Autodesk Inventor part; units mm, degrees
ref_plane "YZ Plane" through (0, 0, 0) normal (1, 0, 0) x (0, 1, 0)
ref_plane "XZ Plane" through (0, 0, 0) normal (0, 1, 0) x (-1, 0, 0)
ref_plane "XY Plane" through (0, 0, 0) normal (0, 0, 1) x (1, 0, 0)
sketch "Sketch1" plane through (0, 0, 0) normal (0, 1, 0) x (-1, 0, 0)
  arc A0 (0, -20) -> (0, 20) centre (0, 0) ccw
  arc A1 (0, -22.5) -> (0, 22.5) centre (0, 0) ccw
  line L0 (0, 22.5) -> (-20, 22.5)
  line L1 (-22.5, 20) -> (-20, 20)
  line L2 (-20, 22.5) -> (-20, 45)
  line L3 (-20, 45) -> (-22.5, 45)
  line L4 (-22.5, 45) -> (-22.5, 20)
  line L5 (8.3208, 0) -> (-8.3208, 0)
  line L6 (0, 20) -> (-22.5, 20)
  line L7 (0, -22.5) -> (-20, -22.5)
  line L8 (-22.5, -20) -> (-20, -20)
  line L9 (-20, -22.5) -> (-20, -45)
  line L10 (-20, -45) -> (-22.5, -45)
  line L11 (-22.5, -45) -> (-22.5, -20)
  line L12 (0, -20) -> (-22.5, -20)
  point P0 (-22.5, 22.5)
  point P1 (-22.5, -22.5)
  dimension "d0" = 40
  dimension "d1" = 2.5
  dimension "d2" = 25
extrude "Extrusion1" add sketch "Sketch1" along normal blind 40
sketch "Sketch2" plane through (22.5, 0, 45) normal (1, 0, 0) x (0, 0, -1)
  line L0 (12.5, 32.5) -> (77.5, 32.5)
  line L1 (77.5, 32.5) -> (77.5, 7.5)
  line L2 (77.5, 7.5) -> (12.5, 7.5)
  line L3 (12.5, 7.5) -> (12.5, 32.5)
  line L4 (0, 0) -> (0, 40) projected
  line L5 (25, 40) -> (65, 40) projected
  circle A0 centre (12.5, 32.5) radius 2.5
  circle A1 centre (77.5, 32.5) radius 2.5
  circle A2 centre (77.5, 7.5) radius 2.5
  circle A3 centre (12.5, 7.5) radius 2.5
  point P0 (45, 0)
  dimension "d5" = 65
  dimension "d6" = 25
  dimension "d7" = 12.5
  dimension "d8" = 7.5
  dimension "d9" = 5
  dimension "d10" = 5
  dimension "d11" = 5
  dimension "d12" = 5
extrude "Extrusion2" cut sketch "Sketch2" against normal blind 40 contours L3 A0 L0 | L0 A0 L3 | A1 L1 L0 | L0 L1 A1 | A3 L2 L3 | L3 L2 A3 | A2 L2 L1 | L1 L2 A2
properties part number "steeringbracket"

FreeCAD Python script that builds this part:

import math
import FreeCAD as App
import Part
import Sketcher

V = App.Vector
Q = App.Units.Quantity

doc = App.newDocument("Part")
body = doc.addObject("PartDesign::Body", "Body")

sketch1 = body.newObject("Sketcher::SketchObject", "Sketch")
sketch1.AttachmentSupport = (doc.getObject("XZ_Plane"), [""])
sketch1.MapMode = "FlatFace"
sketch1.addGeometry([
    Part.ArcOfCircle(Part.Circle(V(0, 0, 0), V(0, 0, 1), 20), math.radians(90), math.radians(270)),
    Part.LineSegment(V(0, -20, 0), V(22.5, -20, 0)),
    Part.LineSegment(V(22.5, -20, 0), V(22.5, -45, 0)),
    Part.LineSegment(V(22.5, -45, 0), V(20, -45, 0)),
    Part.LineSegment(V(20, -45, 0), V(20, -22.5, 0)),
    Part.LineSegment(V(20, -22.5, 0), V(0, -22.5, 0)),
    Part.ArcOfCircle(Part.Circle(V(0, 0, 0), V(0, 0, 1), 22.5), math.radians(90), math.radians(270)),
    Part.LineSegment(V(0, 22.5, 0), V(20, 22.5, 0)),
    Part.LineSegment(V(20, 22.5, 0), V(20, 45, 0)),
    Part.LineSegment(V(20, 45, 0), V(22.5, 45, 0)),
    Part.LineSegment(V(22.5, 45, 0), V(22.5, 20, 0)),
    Part.LineSegment(V(22.5, 20, 0), V(0, 20, 0)),
], False)
sketch1.addConstraint([
    Sketcher.Constraint("Tangent", 0, 2, 1, 1),
    Sketcher.Constraint("Coincident", 1, 2, 2, 1),
    Sketcher.Constraint("Coincident", 2, 2, 3, 1),
    Sketcher.Constraint("Coincident", 3, 2, 4, 1),
    Sketcher.Constraint("Coincident", 4, 2, 5, 1),
    Sketcher.Constraint("Tangent", 5, 2, 6, 2),
    Sketcher.Constraint("Tangent", 6, 1, 7, 1),
    Sketcher.Constraint("Coincident", 7, 2, 8, 1),
    Sketcher.Constraint("Coincident", 8, 2, 9, 1),
    Sketcher.Constraint("Coincident", 9, 2, 10, 1),
    Sketcher.Constraint("Coincident", 10, 2, 11, 1),
    Sketcher.Constraint("Tangent", 11, 2, 0, 1),
    Sketcher.Constraint("Horizontal", 1),
    Sketcher.Constraint("Vertical", 2),
    Sketcher.Constraint("Horizontal", 3),
    Sketcher.Constraint("Vertical", 4),
    Sketcher.Constraint("Horizontal", 5),
    Sketcher.Constraint("Horizontal", 7),
    Sketcher.Constraint("Vertical", 8),
    Sketcher.Constraint("Horizontal", 9),
    Sketcher.Constraint("Vertical", 10),
    Sketcher.Constraint("Horizontal", 11),
    Sketcher.Constraint("Coincident", 0, 3, -1, 1),
    Sketcher.Constraint("Coincident", 6, 3, -1, 1),
    Sketcher.Constraint("Symmetric", 3, 2, 8, 2, -1),
    Sketcher.Constraint("Vertical", 2, 2, 9, 2),
    Sketcher.Constraint("Equal", 11, 4),
    Sketcher.Constraint("Radius", 0, Q("20 mm")),
    Sketcher.Constraint("DistanceY", 2, 2, 2, 1, Q("25 mm")),
    Sketcher.Constraint("DistanceX", 3, 2, 3, 1, Q("2.5 mm")),
    Sketcher.Constraint("Radius", 6, Q("22.5 mm")),
])
pad1 = body.newObject("PartDesign::Pad", "Pad")
pad1.Profile = sketch1
pad1.Length = 40
pad1.Reversed = True

sketch2 = body.newObject("Sketcher::SketchObject", "Sketch001")
sketch2.AttachmentSupport = (doc.getObject("YZ_Plane"), [""])
sketch2.MapMode = "FlatFace"
sketch2.AttachmentOffset = App.Placement(V(0, 0, 22.5), App.Rotation())
sketch2.addGeometry([
    Part.Circle(V(32.5, 32.5, 0), V(0, 0, 1), 2.5),
    Part.Circle(V(32.5, -32.5, 0), V(0, 0, 1), 2.5),
    Part.Circle(V(7.5, 32.5, 0), V(0, 0, 1), 2.5),
    Part.Circle(V(7.5, -32.5, 0), V(0, 0, 1), 2.5),
], False)
sketch2.addConstraint([
    Sketcher.Constraint("Equal", 0, 1),
    Sketcher.Constraint("Equal", 1, 2),
    Sketcher.Constraint("Equal", 2, 3),
    Sketcher.Constraint("Symmetric", 0, 3, 1, 3, -1),
    Sketcher.Constraint("Symmetric", 2, 3, 3, 3, -1),
    Sketcher.Constraint("Horizontal", 0, 3, 2, 3),
    Sketcher.Constraint("Diameter", 0, Q("5 mm")),
    Sketcher.Constraint("DistanceY", 1, 3, 0, 3, Q("65 mm")),
    Sketcher.Constraint("DistanceX", 2, 3, 0, 3, Q("25 mm")),
    Sketcher.Constraint("DistanceX", -1, 1, 2, 3, Q("7.5 mm")),
])
pocket1 = body.newObject("PartDesign::Pocket", "Pocket")
pocket1.Profile = sketch2
pocket1.Length = 40

doc.recompute()
